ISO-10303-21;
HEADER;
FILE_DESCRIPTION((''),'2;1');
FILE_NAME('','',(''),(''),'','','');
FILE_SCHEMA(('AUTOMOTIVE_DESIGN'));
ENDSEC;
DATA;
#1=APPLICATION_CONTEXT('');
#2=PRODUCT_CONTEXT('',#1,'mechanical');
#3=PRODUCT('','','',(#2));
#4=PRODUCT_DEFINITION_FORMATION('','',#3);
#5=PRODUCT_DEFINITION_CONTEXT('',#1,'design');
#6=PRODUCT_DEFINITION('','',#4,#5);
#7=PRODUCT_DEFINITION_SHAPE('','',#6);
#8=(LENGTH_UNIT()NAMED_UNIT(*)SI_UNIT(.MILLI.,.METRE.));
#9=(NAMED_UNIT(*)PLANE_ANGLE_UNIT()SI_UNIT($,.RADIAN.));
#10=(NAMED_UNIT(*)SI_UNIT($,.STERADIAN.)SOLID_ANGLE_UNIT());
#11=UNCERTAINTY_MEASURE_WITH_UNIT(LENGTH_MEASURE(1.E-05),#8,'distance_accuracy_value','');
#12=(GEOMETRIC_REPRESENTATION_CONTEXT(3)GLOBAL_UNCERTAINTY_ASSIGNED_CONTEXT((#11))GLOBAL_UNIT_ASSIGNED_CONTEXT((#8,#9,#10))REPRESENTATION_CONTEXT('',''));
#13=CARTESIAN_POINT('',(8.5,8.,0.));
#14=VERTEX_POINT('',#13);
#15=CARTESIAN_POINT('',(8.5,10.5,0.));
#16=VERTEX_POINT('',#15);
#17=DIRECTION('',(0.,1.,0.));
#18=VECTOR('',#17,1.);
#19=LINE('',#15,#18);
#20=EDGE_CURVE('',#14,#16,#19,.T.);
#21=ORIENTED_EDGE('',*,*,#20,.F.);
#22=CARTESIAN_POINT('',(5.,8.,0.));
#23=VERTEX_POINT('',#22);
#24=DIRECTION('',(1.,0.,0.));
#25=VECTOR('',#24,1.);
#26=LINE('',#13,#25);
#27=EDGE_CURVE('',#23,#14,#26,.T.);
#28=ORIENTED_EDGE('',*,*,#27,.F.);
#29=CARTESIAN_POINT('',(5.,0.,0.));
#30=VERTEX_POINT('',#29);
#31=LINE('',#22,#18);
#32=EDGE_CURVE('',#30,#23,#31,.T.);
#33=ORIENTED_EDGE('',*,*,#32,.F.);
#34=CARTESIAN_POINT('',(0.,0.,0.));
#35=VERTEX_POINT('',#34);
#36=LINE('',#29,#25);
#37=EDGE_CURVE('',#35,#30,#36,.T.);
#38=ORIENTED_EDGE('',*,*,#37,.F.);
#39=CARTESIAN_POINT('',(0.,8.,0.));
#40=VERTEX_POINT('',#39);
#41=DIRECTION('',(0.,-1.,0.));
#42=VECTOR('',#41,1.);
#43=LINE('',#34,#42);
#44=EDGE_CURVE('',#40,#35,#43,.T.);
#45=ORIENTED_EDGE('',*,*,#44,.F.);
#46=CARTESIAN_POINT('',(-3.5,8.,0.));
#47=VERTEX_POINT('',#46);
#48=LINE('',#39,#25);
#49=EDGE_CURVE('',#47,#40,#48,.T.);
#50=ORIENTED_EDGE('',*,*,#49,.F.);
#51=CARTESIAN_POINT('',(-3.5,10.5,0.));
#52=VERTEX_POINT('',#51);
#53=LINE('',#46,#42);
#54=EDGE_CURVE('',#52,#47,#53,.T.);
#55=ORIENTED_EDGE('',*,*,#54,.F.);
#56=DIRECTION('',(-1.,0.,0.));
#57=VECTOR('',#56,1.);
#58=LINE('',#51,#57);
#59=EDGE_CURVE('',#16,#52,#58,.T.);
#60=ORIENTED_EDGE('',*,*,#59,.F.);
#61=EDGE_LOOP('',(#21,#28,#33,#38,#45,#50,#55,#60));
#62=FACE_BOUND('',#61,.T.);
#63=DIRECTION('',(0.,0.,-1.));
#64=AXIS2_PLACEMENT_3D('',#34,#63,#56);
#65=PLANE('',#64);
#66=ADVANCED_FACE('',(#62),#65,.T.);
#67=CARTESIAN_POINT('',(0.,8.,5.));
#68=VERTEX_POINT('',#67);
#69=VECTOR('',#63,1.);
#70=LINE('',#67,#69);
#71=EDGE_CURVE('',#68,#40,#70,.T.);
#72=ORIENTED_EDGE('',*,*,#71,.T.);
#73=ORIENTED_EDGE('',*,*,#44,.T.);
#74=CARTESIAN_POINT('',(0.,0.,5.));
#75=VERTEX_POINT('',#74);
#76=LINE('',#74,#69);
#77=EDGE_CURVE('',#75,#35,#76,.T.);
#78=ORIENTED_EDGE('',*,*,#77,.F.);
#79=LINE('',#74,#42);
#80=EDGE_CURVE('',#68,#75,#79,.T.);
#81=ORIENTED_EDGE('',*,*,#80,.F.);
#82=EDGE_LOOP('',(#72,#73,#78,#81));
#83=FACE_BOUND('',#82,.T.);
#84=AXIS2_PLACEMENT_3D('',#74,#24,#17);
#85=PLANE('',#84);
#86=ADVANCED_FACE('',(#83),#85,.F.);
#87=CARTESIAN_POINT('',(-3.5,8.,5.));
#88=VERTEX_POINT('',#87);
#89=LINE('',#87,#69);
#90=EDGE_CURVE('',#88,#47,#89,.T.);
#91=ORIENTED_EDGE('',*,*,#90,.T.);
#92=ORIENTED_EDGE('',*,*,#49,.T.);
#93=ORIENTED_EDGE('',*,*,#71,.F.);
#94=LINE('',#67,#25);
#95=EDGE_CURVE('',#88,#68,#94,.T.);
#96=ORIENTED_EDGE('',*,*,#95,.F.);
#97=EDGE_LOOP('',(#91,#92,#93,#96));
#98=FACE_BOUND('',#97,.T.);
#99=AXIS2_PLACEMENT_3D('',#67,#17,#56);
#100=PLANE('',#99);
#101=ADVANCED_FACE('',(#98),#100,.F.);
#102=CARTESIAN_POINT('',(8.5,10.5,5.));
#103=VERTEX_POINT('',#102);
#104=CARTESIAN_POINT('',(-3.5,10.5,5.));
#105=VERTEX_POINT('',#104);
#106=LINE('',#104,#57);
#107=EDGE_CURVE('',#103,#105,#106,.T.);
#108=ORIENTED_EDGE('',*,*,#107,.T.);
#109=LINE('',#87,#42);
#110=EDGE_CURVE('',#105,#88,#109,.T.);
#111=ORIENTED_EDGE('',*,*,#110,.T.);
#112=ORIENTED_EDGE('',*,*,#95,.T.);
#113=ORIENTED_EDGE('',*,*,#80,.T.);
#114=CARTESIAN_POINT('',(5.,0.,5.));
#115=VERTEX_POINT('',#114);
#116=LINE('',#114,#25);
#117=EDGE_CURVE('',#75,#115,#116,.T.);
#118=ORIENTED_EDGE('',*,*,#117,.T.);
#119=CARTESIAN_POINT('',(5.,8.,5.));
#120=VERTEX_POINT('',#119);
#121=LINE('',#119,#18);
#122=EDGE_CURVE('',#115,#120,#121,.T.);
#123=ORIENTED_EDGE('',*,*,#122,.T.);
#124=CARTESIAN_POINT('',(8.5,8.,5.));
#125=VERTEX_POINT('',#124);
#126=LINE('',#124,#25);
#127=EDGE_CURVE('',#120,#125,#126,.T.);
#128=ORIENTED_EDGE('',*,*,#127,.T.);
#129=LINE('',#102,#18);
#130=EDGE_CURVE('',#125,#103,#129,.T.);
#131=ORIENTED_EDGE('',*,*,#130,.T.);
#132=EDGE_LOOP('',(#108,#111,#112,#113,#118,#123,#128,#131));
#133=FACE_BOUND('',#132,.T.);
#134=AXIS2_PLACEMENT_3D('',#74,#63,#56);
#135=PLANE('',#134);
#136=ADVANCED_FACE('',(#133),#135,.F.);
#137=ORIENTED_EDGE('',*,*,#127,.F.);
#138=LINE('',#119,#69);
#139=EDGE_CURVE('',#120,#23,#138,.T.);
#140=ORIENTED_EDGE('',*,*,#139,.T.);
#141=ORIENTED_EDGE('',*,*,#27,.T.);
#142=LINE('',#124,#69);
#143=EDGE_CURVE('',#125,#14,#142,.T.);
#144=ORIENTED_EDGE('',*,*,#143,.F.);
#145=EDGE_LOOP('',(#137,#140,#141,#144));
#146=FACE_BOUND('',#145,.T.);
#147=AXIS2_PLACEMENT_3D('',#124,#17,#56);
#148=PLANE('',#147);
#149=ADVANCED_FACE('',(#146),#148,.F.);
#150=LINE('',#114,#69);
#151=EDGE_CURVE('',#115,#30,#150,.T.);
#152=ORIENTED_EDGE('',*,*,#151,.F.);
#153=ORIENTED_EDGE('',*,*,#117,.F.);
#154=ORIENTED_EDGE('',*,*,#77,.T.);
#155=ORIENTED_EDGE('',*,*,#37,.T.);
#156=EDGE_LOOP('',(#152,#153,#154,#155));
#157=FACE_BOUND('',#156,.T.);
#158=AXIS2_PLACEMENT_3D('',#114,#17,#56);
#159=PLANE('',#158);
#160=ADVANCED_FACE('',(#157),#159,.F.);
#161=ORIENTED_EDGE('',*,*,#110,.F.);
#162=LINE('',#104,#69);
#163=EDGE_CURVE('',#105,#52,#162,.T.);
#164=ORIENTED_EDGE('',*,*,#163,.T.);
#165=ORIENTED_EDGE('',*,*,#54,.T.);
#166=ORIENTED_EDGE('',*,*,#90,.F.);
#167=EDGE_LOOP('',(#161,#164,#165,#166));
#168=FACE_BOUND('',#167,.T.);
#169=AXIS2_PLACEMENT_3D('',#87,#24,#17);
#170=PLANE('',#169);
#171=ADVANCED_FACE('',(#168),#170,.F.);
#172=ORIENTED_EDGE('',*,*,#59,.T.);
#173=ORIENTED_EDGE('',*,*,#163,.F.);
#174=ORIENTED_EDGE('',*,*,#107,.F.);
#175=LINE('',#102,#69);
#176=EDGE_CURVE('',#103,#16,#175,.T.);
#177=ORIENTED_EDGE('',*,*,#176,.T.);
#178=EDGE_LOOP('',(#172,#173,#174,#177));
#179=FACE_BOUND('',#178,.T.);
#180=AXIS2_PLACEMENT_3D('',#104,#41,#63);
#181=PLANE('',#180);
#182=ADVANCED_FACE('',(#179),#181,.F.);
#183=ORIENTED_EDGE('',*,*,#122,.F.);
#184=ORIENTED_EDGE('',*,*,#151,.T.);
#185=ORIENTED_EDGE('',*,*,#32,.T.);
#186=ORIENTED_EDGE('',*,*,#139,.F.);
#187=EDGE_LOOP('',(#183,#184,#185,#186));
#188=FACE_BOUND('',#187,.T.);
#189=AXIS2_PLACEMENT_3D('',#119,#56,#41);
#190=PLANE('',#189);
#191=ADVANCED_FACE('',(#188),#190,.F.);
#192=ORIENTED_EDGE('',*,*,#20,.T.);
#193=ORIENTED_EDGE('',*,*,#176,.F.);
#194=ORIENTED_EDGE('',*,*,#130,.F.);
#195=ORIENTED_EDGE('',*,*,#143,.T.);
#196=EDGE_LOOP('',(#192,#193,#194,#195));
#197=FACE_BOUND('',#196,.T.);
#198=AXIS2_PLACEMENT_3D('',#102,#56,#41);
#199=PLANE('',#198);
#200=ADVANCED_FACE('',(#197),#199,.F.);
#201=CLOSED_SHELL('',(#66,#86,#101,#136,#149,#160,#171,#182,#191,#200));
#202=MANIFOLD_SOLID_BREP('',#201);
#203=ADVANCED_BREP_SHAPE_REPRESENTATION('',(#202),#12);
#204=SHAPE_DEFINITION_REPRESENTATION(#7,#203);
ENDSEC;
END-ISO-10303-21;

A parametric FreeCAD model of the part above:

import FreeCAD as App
import Part
import Sketcher
from FreeCAD import Vector

doc = App.newDocument("Part")
body = doc.addObject("PartDesign::Body", "Body")

sketch1 = body.newObject("Sketcher::SketchObject", "Sketch")
sketch1.AttachmentSupport = (doc.getObject("XY_Plane"), [""])
sketch1.MapMode = "FlatFace"
sketch1.addGeometry([
    Part.LineSegment(Vector(0, 8, 0), Vector(0, 0, 0)),
    Part.LineSegment(Vector(0, 0, 0), Vector(5, 0, 0)),
    Part.LineSegment(Vector(5, 0, 0), Vector(5, 8, 0)),
    Part.LineSegment(Vector(5, 8, 0), Vector(8.5, 8, 0)),
    Part.LineSegment(Vector(8.5, 8, 0), Vector(8.5, 10.5, 0)),
    Part.LineSegment(Vector(8.5, 10.5, 0), Vector(-3.5, 10.5, 0)),
    Part.LineSegment(Vector(-3.5, 10.5, 0), Vector(-3.5, 8, 0)),
    Part.LineSegment(Vector(-3.5, 8, 0), Vector(0, 8, 0)),
], False)
sketch1.addConstraint([
    Sketcher.Constraint("Coincident", 0, 2, 1, 1),
    Sketcher.Constraint("Coincident", 1, 2, 2, 1),
    Sketcher.Constraint("Coincident", 2, 2, 3, 1),
    Sketcher.Constraint("Coincident", 3, 2, 4, 1),
    Sketcher.Constraint("Coincident", 4, 2, 5, 1),
    Sketcher.Constraint("Coincident", 5, 2, 6, 1),
    Sketcher.Constraint("Coincident", 6, 2, 7, 1),
    Sketcher.Constraint("Coincident", 7, 2, 0, 1),
    Sketcher.Constraint("Vertical", 0),
    Sketcher.Constraint("Horizontal", 1),
    Sketcher.Constraint("Vertical", 2),
    Sketcher.Constraint("Horizontal", 3),
    Sketcher.Constraint("Vertical", 4),
    Sketcher.Constraint("Horizontal", 5),
    Sketcher.Constraint("Vertical", 6),
    Sketcher.Constraint("Horizontal", 7),
    Sketcher.Constraint("Coincident", 0, 2, -1, 1),
    Sketcher.Constraint("Horizontal", 3, 2, 6, 2),
    Sketcher.Constraint("Equal", 3, 7),
    Sketcher.Constraint("DistanceX", 1, 1, 1, 2, 5.0),
    Sketcher.Constraint("DistanceX", 5, 2, 5, 1, 12.0),
    Sketcher.Constraint("DistanceY", 0, 2, 0, 1, 8.0),
    Sketcher.Constraint("DistanceY", 4, 1, 4, 2, 2.5),
])
pad1 = body.newObject("PartDesign::Pad", "Pad")
pad1.Profile = sketch1
pad1.Length = 5

doc.recompute()
